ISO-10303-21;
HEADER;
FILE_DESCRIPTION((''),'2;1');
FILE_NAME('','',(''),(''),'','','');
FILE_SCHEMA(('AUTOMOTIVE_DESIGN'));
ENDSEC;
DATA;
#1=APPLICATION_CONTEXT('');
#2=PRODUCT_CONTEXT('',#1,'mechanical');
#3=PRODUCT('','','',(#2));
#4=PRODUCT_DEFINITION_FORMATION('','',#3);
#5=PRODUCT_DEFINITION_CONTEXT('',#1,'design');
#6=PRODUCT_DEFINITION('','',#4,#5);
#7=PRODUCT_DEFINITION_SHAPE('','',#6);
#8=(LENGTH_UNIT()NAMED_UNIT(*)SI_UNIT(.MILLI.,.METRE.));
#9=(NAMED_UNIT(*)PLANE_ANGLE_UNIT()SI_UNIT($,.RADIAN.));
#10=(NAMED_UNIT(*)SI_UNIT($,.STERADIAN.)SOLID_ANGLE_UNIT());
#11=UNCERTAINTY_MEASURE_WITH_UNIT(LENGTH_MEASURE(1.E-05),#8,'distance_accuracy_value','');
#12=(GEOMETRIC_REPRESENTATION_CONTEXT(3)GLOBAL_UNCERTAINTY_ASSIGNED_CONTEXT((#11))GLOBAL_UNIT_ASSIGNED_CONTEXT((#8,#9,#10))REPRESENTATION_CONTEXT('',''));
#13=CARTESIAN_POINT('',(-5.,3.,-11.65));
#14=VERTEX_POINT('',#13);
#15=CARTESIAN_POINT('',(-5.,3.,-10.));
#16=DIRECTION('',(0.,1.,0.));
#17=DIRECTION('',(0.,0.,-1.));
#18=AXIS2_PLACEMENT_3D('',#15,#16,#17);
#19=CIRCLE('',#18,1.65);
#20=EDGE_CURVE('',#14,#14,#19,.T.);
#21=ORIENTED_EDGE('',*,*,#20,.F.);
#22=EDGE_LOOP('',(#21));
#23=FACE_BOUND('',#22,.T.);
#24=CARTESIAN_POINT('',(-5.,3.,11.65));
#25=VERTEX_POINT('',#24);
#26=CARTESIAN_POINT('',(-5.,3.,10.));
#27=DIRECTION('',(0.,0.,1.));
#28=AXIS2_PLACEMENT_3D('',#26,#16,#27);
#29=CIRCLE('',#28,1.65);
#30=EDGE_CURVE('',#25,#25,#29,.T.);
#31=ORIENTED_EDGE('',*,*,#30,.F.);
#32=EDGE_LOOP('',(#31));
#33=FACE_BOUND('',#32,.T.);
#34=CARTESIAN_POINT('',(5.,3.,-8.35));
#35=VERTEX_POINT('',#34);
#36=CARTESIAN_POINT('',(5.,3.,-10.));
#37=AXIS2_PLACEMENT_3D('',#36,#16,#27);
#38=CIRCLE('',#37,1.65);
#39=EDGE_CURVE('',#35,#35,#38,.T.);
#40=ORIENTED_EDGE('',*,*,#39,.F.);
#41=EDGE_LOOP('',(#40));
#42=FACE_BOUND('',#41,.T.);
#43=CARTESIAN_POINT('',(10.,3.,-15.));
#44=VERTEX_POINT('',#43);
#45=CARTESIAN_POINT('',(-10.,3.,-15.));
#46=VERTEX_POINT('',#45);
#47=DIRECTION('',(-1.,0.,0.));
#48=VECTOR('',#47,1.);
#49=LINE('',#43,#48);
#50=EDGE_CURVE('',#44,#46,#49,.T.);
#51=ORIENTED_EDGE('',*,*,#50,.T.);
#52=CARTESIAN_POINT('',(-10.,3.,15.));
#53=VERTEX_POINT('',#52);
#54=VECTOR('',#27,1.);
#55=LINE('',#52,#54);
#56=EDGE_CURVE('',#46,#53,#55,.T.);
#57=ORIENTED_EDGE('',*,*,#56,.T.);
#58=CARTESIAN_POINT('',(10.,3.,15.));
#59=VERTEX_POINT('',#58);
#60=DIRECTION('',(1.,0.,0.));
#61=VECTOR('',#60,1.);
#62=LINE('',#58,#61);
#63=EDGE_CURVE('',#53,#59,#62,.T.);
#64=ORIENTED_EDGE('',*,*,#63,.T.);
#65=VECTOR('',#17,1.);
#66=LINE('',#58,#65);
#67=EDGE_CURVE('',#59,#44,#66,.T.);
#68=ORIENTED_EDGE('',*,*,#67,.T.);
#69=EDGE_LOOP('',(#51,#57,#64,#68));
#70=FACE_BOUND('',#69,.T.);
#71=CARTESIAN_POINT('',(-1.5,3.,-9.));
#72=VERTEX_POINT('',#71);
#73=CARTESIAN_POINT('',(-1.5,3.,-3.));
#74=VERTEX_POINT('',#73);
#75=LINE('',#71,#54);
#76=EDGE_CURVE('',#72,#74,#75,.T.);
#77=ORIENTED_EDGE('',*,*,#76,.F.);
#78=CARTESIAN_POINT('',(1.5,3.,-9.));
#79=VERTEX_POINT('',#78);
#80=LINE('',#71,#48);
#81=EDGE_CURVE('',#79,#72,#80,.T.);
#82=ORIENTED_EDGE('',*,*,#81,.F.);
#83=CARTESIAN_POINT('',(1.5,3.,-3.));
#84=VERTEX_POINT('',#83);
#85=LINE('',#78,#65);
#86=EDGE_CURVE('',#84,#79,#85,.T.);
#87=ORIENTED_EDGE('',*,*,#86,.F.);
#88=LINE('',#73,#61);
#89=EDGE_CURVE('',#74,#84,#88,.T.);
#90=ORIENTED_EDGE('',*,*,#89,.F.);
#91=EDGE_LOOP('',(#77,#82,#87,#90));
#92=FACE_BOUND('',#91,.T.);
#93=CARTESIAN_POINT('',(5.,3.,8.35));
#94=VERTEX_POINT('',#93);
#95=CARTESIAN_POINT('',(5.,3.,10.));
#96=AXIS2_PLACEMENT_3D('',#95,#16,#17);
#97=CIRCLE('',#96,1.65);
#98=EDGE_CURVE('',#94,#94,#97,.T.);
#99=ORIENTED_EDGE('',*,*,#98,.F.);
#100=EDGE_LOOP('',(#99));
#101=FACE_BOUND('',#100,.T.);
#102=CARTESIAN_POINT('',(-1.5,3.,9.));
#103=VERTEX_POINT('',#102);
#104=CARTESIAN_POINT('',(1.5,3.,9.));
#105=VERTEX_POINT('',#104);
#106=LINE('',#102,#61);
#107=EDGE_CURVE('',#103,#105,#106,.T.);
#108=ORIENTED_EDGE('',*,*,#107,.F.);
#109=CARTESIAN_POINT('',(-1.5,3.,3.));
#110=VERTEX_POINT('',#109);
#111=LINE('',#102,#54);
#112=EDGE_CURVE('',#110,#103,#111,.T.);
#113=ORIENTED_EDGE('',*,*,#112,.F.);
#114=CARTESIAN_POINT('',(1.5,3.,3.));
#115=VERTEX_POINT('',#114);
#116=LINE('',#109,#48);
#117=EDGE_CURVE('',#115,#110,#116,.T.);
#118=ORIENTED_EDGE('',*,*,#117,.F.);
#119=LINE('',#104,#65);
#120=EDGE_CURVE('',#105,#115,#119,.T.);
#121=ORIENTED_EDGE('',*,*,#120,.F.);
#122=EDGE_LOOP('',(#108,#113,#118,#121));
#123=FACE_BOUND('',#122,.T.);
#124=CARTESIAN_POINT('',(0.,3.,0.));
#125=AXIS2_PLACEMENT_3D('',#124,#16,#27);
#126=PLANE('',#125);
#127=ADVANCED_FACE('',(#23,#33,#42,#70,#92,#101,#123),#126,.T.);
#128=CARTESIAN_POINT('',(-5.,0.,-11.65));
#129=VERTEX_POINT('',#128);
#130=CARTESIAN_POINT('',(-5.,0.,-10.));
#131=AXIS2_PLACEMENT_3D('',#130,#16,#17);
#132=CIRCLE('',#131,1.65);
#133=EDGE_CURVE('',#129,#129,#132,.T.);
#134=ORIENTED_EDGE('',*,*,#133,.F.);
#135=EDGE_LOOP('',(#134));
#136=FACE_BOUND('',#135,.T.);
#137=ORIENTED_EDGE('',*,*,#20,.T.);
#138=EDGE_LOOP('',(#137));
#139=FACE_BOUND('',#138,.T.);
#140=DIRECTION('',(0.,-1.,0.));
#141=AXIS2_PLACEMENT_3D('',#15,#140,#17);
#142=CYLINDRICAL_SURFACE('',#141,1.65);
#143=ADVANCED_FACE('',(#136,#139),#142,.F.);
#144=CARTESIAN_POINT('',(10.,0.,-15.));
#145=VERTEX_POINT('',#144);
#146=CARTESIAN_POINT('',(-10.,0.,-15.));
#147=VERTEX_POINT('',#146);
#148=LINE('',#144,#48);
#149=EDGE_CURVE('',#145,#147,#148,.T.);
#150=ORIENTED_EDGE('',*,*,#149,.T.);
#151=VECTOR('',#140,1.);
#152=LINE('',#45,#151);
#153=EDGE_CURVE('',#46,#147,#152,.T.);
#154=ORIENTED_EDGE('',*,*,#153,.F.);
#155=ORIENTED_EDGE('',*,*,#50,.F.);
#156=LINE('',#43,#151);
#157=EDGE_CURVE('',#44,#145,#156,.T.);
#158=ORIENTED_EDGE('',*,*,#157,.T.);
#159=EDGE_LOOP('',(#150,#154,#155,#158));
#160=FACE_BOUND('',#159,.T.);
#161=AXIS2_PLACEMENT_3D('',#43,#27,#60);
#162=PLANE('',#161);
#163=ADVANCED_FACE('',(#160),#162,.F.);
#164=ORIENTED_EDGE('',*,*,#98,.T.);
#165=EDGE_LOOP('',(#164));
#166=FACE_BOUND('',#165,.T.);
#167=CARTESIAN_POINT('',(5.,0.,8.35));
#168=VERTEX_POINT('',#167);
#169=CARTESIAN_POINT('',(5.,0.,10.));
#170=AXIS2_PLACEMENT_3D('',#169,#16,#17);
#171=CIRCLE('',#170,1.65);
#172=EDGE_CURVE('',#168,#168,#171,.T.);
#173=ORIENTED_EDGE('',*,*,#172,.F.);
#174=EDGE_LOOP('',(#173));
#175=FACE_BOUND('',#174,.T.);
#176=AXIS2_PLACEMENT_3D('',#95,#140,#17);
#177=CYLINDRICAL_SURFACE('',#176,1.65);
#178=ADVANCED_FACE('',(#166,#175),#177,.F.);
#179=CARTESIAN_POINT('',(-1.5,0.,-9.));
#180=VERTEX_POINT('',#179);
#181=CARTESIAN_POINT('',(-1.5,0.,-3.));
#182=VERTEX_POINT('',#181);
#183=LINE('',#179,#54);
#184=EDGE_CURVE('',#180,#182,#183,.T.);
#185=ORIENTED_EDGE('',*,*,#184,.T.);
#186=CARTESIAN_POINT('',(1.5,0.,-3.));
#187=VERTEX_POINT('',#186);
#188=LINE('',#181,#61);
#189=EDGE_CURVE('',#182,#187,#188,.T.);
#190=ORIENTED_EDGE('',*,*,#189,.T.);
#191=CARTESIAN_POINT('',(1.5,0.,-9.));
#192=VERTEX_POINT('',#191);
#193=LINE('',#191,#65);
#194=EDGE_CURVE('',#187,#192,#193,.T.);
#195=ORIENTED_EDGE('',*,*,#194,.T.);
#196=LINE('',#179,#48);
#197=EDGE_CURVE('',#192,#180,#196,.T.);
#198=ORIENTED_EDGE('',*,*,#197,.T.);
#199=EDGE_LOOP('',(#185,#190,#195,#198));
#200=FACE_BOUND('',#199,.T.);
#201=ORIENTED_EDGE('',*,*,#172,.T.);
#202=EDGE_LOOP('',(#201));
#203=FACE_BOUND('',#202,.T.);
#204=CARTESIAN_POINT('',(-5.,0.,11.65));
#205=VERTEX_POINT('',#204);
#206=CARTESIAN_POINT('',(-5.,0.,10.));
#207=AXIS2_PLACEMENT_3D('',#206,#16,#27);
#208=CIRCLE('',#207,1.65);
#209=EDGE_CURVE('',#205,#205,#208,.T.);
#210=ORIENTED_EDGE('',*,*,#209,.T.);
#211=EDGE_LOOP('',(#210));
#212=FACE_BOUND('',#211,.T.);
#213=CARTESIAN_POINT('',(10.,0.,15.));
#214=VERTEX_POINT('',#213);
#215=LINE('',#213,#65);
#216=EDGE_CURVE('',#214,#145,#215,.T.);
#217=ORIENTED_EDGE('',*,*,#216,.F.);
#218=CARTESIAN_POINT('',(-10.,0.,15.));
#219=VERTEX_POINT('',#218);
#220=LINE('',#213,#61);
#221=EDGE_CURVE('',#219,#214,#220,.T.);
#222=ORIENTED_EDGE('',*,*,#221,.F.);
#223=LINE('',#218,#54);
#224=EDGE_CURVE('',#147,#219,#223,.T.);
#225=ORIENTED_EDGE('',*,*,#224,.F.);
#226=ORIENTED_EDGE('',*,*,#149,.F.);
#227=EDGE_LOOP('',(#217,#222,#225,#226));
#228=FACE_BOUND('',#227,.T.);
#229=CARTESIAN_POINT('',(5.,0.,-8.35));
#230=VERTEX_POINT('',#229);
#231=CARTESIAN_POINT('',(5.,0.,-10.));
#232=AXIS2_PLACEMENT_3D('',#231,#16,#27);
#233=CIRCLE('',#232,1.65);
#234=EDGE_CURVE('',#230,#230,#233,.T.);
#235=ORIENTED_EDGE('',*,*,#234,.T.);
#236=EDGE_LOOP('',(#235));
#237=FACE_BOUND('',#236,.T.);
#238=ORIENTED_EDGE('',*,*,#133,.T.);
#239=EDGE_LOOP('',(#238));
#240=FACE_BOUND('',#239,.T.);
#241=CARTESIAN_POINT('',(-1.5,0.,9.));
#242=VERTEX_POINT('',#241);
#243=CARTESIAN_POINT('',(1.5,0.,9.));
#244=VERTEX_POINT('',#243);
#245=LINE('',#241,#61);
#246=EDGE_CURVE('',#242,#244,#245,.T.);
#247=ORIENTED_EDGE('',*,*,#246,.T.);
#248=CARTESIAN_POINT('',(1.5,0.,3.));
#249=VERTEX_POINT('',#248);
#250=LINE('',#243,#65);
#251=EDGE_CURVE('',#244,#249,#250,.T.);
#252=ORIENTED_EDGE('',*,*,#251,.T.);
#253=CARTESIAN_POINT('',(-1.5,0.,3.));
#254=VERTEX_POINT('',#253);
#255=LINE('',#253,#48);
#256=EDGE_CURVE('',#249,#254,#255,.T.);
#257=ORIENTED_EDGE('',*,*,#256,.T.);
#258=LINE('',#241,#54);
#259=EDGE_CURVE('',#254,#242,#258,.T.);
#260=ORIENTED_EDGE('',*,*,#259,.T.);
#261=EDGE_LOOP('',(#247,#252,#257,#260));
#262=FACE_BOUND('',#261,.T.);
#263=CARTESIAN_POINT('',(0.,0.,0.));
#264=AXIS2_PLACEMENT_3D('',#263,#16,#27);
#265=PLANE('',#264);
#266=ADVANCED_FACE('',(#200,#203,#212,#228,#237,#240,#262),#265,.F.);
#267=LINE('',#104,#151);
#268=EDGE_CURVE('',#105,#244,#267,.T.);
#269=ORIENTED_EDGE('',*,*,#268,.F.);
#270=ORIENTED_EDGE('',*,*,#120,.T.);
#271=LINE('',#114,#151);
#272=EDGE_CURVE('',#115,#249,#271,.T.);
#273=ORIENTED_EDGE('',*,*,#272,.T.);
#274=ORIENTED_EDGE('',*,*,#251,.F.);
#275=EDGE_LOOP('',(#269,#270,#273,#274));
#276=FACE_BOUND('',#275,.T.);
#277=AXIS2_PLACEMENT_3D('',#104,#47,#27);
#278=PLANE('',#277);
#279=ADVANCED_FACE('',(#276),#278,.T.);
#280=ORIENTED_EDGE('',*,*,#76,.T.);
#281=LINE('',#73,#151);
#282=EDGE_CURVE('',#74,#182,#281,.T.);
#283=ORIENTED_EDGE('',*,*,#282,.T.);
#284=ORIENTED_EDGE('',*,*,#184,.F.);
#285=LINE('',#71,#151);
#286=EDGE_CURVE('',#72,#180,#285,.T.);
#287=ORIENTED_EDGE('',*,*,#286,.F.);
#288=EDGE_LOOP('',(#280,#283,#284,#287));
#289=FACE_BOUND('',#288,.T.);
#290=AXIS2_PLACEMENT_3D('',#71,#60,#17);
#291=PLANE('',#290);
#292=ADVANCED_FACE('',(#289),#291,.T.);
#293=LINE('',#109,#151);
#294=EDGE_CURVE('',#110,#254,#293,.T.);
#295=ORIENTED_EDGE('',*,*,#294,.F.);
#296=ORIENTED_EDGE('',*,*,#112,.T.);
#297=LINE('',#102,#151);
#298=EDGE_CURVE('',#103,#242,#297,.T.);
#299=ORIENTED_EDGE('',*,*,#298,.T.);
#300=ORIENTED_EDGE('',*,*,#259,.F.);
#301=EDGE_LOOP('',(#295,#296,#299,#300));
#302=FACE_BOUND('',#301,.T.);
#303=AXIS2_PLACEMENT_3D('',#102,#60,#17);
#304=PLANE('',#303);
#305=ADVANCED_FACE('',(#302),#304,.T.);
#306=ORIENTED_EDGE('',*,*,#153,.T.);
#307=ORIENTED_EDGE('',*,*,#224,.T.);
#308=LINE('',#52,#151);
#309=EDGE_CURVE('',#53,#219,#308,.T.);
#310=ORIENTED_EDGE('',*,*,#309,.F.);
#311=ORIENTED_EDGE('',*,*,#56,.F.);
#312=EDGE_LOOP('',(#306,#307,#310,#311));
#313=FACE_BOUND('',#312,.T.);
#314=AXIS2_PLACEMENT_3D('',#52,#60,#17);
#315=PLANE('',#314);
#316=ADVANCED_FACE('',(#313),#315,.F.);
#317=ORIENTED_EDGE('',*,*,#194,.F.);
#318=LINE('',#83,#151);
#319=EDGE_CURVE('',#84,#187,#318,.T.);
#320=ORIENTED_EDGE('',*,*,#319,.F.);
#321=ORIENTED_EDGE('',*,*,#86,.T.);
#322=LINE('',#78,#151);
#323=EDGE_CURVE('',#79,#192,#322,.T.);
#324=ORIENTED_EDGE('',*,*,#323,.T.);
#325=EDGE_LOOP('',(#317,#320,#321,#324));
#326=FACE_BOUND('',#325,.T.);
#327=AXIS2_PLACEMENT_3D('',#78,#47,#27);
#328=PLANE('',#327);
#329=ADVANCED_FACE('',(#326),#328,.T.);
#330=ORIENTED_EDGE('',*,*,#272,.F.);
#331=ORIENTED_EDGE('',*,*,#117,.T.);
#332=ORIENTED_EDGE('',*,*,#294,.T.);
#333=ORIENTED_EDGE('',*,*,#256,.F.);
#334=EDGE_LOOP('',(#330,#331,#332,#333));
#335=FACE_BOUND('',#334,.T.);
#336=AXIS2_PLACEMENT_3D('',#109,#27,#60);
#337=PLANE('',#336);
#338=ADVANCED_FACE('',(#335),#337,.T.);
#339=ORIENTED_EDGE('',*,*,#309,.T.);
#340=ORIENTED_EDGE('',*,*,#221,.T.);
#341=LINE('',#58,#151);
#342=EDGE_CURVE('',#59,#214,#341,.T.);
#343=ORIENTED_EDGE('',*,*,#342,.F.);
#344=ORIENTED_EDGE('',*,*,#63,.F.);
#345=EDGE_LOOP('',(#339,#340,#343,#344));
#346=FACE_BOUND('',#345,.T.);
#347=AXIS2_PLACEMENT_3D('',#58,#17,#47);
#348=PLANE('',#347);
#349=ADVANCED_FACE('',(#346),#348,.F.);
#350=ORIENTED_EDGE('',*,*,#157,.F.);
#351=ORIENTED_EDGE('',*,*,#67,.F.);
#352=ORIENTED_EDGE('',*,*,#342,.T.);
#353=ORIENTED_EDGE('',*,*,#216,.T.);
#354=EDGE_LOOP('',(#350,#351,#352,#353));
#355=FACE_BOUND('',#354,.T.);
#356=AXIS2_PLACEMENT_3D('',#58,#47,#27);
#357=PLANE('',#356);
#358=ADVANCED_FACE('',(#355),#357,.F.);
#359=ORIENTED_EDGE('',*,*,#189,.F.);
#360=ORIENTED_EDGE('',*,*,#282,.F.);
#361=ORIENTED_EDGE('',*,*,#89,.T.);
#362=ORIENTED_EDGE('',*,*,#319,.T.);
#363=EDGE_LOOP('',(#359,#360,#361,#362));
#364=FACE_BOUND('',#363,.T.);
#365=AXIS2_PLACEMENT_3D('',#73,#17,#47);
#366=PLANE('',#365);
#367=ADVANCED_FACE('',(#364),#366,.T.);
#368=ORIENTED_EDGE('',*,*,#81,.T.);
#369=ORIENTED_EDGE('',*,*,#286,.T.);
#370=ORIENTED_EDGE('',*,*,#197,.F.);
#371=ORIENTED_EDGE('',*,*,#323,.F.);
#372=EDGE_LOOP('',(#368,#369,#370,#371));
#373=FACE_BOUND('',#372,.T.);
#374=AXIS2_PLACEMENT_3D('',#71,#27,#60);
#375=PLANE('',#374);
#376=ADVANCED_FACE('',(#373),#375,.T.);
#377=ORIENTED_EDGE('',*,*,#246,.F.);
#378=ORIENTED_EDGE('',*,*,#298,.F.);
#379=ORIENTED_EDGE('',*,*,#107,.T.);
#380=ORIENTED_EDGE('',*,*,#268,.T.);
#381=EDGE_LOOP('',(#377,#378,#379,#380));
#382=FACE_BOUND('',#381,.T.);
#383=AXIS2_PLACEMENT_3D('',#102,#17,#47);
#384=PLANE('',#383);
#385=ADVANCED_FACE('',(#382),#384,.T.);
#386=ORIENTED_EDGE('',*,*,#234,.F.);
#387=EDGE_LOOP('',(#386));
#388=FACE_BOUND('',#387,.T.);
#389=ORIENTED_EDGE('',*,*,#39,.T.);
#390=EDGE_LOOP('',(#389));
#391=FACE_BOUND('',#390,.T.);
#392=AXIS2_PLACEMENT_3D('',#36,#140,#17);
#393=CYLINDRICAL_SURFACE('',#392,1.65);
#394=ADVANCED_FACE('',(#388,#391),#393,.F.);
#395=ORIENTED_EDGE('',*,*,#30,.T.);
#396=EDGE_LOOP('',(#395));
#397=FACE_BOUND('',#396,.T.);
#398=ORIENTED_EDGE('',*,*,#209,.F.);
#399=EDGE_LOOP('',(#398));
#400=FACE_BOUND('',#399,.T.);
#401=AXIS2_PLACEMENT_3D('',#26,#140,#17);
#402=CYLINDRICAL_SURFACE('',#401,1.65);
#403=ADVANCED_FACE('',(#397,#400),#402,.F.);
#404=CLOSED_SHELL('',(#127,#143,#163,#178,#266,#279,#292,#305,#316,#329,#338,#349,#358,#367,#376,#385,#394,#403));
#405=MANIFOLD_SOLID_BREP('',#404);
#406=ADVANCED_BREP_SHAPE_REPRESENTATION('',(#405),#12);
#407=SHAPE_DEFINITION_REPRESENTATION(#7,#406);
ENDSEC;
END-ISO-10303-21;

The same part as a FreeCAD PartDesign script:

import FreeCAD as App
import Part
import Sketcher

V = App.Vector
Q = App.Units.Quantity

doc = App.newDocument("Part")
body = doc.addObject("PartDesign::Body", "Body")

# Sketch on XZ plane
sketch1 = body.newObject("Sketcher::SketchObject", "Sketch")
sketch1.AttachmentSupport = (doc.getObject("XZ_Plane"), [""])
sketch1.MapMode = "FlatFace"
sketch1.addGeometry([
    Part.LineSegment(V(-10, -15, 0), V(-10, 15, 0)),  # 0
    Part.LineSegment(V(-10, 15, 0), V(10, 15, 0)),  # 1
    Part.LineSegment(V(10, 15, 0), V(10, -15, 0)),  # 2
    Part.LineSegment(V(10, -15, 0), V(-10, -15, 0)),  # 3
    Part.Circle(V(-5, 10, 0), V(0, 0, 1), 1.6),  # 4
    Part.LineSegment(V(1.5, 9, 0), V(-1.5, 9, 0)),  # 5
    Part.LineSegment(V(-1.5, 9, 0), V(-1.5, 3, 0)),  # 6
    Part.LineSegment(V(-1.5, 3, 0), V(1.5, 3, 0)),  # 7
    Part.LineSegment(V(1.5, 3, 0), V(1.5, 9, 0)),  # 8
    Part.Circle(V(5, 10, 0), V(0, 0, 1), 1.6),  # 9
    Part.Circle(V(-5, -10, 0), V(0, 0, 1), 1.6),  # 10
    Part.LineSegment(V(1.5, -3, 0), V(-1.5, -3, 0)),  # 11
    Part.LineSegment(V(-1.5, -3, 0), V(-1.5, -9, 0)),  # 12
    Part.LineSegment(V(-1.5, -9, 0), V(1.5, -9, 0)),  # 13
    Part.LineSegment(V(1.5, -9, 0), V(1.5, -3, 0)),  # 14
    Part.Circle(V(5, -10, 0), V(0, 0, 1), 1.6),  # 15
], False)
sketch1.addConstraint([
    Sketcher.Constraint("Coincident", 0, 2, 1, 1),
    Sketcher.Constraint("Coincident", 1, 2, 2, 1),
    Sketcher.Constraint("Coincident", 2, 2, 3, 1),
    Sketcher.Constraint("Coincident", 3, 2, 0, 1),
    Sketcher.Constraint("Coincident", 5, 2, 6, 1),
    Sketcher.Constraint("Coincident", 6, 2, 7, 1),
    Sketcher.Constraint("Coincident", 7, 2, 8, 1),
    Sketcher.Constraint("Coincident", 8, 2, 5, 1),
    Sketcher.Constraint("Coincident", 11, 2, 12, 1),
    Sketcher.Constraint("Coincident", 12, 2, 13, 1),
    Sketcher.Constraint("Coincident", 13, 2, 14, 1),
    Sketcher.Constraint("Coincident", 14, 2, 11, 1),
    Sketcher.Constraint("Vertical", 0),
    Sketcher.Constraint("Horizontal", 1),
    Sketcher.Constraint("Vertical", 2),
    Sketcher.Constraint("Horizontal", 3),
    Sketcher.Constraint("Horizontal", 5),
    Sketcher.Constraint("Vertical", 6),
    Sketcher.Constraint("Horizontal", 7),
    Sketcher.Constraint("Vertical", 8),
    Sketcher.Constraint("Horizontal", 11),
    Sketcher.Constraint("Vertical", 12),
    Sketcher.Constraint("Horizontal", 13),
    Sketcher.Constraint("Vertical", 14),
    Sketcher.Constraint("Equal", 4, 9),
    Sketcher.Constraint("Equal", 9, 10),
    Sketcher.Constraint("Equal", 10, 15),
    Sketcher.Constraint("Symmetric", 9, 3, 10, 3, -1, 1),
    Sketcher.Constraint("Symmetric", 4, 3, 15, 3, -1, 1),
    Sketcher.Constraint("Symmetric", 0, 2, 2, 2, -1, 1),
    Sketcher.Constraint("Symmetric", 7, 2, 11, 2, -1, 1),
    Sketcher.Constraint("Symmetric", 5, 2, 13, 2, -1, 1),
    Sketcher.Constraint("Symmetric", 4, 3, 9, 3, -2),
    Sketcher.Constraint("Vertical", 6, 2, 11, 2),
    Sketcher.Constraint("Diameter", 4, Q("3.3 mm")),
    Sketcher.Constraint("DistanceX", 1, 1, 1, 2, Q("20 mm")),
    Sketcher.Constraint("DistanceX", 5, 2, 5, 1, Q("3 mm")),
    Sketcher.Constraint("DistanceY", 0, 1, 0, 2, Q("30 mm")),
    Sketcher.Constraint("DistanceY", 6, 2, 6, 1, Q("6 mm")),
    Sketcher.Constraint("DistanceX", 4, 3, -1, 1, Q("5 mm")),
    Sketcher.Constraint("DistanceY", -1, 1, 4, 3, Q("10 mm")),
    Sketcher.Constraint("DistanceY", -1, 1, 5, 2, Q("9 mm")),
])
pad1 = body.newObject("PartDesign::Pad", "Pad")
pad1.Profile = sketch1
pad1.Length = 3
pad1.Reversed = True

doc.recompute()
